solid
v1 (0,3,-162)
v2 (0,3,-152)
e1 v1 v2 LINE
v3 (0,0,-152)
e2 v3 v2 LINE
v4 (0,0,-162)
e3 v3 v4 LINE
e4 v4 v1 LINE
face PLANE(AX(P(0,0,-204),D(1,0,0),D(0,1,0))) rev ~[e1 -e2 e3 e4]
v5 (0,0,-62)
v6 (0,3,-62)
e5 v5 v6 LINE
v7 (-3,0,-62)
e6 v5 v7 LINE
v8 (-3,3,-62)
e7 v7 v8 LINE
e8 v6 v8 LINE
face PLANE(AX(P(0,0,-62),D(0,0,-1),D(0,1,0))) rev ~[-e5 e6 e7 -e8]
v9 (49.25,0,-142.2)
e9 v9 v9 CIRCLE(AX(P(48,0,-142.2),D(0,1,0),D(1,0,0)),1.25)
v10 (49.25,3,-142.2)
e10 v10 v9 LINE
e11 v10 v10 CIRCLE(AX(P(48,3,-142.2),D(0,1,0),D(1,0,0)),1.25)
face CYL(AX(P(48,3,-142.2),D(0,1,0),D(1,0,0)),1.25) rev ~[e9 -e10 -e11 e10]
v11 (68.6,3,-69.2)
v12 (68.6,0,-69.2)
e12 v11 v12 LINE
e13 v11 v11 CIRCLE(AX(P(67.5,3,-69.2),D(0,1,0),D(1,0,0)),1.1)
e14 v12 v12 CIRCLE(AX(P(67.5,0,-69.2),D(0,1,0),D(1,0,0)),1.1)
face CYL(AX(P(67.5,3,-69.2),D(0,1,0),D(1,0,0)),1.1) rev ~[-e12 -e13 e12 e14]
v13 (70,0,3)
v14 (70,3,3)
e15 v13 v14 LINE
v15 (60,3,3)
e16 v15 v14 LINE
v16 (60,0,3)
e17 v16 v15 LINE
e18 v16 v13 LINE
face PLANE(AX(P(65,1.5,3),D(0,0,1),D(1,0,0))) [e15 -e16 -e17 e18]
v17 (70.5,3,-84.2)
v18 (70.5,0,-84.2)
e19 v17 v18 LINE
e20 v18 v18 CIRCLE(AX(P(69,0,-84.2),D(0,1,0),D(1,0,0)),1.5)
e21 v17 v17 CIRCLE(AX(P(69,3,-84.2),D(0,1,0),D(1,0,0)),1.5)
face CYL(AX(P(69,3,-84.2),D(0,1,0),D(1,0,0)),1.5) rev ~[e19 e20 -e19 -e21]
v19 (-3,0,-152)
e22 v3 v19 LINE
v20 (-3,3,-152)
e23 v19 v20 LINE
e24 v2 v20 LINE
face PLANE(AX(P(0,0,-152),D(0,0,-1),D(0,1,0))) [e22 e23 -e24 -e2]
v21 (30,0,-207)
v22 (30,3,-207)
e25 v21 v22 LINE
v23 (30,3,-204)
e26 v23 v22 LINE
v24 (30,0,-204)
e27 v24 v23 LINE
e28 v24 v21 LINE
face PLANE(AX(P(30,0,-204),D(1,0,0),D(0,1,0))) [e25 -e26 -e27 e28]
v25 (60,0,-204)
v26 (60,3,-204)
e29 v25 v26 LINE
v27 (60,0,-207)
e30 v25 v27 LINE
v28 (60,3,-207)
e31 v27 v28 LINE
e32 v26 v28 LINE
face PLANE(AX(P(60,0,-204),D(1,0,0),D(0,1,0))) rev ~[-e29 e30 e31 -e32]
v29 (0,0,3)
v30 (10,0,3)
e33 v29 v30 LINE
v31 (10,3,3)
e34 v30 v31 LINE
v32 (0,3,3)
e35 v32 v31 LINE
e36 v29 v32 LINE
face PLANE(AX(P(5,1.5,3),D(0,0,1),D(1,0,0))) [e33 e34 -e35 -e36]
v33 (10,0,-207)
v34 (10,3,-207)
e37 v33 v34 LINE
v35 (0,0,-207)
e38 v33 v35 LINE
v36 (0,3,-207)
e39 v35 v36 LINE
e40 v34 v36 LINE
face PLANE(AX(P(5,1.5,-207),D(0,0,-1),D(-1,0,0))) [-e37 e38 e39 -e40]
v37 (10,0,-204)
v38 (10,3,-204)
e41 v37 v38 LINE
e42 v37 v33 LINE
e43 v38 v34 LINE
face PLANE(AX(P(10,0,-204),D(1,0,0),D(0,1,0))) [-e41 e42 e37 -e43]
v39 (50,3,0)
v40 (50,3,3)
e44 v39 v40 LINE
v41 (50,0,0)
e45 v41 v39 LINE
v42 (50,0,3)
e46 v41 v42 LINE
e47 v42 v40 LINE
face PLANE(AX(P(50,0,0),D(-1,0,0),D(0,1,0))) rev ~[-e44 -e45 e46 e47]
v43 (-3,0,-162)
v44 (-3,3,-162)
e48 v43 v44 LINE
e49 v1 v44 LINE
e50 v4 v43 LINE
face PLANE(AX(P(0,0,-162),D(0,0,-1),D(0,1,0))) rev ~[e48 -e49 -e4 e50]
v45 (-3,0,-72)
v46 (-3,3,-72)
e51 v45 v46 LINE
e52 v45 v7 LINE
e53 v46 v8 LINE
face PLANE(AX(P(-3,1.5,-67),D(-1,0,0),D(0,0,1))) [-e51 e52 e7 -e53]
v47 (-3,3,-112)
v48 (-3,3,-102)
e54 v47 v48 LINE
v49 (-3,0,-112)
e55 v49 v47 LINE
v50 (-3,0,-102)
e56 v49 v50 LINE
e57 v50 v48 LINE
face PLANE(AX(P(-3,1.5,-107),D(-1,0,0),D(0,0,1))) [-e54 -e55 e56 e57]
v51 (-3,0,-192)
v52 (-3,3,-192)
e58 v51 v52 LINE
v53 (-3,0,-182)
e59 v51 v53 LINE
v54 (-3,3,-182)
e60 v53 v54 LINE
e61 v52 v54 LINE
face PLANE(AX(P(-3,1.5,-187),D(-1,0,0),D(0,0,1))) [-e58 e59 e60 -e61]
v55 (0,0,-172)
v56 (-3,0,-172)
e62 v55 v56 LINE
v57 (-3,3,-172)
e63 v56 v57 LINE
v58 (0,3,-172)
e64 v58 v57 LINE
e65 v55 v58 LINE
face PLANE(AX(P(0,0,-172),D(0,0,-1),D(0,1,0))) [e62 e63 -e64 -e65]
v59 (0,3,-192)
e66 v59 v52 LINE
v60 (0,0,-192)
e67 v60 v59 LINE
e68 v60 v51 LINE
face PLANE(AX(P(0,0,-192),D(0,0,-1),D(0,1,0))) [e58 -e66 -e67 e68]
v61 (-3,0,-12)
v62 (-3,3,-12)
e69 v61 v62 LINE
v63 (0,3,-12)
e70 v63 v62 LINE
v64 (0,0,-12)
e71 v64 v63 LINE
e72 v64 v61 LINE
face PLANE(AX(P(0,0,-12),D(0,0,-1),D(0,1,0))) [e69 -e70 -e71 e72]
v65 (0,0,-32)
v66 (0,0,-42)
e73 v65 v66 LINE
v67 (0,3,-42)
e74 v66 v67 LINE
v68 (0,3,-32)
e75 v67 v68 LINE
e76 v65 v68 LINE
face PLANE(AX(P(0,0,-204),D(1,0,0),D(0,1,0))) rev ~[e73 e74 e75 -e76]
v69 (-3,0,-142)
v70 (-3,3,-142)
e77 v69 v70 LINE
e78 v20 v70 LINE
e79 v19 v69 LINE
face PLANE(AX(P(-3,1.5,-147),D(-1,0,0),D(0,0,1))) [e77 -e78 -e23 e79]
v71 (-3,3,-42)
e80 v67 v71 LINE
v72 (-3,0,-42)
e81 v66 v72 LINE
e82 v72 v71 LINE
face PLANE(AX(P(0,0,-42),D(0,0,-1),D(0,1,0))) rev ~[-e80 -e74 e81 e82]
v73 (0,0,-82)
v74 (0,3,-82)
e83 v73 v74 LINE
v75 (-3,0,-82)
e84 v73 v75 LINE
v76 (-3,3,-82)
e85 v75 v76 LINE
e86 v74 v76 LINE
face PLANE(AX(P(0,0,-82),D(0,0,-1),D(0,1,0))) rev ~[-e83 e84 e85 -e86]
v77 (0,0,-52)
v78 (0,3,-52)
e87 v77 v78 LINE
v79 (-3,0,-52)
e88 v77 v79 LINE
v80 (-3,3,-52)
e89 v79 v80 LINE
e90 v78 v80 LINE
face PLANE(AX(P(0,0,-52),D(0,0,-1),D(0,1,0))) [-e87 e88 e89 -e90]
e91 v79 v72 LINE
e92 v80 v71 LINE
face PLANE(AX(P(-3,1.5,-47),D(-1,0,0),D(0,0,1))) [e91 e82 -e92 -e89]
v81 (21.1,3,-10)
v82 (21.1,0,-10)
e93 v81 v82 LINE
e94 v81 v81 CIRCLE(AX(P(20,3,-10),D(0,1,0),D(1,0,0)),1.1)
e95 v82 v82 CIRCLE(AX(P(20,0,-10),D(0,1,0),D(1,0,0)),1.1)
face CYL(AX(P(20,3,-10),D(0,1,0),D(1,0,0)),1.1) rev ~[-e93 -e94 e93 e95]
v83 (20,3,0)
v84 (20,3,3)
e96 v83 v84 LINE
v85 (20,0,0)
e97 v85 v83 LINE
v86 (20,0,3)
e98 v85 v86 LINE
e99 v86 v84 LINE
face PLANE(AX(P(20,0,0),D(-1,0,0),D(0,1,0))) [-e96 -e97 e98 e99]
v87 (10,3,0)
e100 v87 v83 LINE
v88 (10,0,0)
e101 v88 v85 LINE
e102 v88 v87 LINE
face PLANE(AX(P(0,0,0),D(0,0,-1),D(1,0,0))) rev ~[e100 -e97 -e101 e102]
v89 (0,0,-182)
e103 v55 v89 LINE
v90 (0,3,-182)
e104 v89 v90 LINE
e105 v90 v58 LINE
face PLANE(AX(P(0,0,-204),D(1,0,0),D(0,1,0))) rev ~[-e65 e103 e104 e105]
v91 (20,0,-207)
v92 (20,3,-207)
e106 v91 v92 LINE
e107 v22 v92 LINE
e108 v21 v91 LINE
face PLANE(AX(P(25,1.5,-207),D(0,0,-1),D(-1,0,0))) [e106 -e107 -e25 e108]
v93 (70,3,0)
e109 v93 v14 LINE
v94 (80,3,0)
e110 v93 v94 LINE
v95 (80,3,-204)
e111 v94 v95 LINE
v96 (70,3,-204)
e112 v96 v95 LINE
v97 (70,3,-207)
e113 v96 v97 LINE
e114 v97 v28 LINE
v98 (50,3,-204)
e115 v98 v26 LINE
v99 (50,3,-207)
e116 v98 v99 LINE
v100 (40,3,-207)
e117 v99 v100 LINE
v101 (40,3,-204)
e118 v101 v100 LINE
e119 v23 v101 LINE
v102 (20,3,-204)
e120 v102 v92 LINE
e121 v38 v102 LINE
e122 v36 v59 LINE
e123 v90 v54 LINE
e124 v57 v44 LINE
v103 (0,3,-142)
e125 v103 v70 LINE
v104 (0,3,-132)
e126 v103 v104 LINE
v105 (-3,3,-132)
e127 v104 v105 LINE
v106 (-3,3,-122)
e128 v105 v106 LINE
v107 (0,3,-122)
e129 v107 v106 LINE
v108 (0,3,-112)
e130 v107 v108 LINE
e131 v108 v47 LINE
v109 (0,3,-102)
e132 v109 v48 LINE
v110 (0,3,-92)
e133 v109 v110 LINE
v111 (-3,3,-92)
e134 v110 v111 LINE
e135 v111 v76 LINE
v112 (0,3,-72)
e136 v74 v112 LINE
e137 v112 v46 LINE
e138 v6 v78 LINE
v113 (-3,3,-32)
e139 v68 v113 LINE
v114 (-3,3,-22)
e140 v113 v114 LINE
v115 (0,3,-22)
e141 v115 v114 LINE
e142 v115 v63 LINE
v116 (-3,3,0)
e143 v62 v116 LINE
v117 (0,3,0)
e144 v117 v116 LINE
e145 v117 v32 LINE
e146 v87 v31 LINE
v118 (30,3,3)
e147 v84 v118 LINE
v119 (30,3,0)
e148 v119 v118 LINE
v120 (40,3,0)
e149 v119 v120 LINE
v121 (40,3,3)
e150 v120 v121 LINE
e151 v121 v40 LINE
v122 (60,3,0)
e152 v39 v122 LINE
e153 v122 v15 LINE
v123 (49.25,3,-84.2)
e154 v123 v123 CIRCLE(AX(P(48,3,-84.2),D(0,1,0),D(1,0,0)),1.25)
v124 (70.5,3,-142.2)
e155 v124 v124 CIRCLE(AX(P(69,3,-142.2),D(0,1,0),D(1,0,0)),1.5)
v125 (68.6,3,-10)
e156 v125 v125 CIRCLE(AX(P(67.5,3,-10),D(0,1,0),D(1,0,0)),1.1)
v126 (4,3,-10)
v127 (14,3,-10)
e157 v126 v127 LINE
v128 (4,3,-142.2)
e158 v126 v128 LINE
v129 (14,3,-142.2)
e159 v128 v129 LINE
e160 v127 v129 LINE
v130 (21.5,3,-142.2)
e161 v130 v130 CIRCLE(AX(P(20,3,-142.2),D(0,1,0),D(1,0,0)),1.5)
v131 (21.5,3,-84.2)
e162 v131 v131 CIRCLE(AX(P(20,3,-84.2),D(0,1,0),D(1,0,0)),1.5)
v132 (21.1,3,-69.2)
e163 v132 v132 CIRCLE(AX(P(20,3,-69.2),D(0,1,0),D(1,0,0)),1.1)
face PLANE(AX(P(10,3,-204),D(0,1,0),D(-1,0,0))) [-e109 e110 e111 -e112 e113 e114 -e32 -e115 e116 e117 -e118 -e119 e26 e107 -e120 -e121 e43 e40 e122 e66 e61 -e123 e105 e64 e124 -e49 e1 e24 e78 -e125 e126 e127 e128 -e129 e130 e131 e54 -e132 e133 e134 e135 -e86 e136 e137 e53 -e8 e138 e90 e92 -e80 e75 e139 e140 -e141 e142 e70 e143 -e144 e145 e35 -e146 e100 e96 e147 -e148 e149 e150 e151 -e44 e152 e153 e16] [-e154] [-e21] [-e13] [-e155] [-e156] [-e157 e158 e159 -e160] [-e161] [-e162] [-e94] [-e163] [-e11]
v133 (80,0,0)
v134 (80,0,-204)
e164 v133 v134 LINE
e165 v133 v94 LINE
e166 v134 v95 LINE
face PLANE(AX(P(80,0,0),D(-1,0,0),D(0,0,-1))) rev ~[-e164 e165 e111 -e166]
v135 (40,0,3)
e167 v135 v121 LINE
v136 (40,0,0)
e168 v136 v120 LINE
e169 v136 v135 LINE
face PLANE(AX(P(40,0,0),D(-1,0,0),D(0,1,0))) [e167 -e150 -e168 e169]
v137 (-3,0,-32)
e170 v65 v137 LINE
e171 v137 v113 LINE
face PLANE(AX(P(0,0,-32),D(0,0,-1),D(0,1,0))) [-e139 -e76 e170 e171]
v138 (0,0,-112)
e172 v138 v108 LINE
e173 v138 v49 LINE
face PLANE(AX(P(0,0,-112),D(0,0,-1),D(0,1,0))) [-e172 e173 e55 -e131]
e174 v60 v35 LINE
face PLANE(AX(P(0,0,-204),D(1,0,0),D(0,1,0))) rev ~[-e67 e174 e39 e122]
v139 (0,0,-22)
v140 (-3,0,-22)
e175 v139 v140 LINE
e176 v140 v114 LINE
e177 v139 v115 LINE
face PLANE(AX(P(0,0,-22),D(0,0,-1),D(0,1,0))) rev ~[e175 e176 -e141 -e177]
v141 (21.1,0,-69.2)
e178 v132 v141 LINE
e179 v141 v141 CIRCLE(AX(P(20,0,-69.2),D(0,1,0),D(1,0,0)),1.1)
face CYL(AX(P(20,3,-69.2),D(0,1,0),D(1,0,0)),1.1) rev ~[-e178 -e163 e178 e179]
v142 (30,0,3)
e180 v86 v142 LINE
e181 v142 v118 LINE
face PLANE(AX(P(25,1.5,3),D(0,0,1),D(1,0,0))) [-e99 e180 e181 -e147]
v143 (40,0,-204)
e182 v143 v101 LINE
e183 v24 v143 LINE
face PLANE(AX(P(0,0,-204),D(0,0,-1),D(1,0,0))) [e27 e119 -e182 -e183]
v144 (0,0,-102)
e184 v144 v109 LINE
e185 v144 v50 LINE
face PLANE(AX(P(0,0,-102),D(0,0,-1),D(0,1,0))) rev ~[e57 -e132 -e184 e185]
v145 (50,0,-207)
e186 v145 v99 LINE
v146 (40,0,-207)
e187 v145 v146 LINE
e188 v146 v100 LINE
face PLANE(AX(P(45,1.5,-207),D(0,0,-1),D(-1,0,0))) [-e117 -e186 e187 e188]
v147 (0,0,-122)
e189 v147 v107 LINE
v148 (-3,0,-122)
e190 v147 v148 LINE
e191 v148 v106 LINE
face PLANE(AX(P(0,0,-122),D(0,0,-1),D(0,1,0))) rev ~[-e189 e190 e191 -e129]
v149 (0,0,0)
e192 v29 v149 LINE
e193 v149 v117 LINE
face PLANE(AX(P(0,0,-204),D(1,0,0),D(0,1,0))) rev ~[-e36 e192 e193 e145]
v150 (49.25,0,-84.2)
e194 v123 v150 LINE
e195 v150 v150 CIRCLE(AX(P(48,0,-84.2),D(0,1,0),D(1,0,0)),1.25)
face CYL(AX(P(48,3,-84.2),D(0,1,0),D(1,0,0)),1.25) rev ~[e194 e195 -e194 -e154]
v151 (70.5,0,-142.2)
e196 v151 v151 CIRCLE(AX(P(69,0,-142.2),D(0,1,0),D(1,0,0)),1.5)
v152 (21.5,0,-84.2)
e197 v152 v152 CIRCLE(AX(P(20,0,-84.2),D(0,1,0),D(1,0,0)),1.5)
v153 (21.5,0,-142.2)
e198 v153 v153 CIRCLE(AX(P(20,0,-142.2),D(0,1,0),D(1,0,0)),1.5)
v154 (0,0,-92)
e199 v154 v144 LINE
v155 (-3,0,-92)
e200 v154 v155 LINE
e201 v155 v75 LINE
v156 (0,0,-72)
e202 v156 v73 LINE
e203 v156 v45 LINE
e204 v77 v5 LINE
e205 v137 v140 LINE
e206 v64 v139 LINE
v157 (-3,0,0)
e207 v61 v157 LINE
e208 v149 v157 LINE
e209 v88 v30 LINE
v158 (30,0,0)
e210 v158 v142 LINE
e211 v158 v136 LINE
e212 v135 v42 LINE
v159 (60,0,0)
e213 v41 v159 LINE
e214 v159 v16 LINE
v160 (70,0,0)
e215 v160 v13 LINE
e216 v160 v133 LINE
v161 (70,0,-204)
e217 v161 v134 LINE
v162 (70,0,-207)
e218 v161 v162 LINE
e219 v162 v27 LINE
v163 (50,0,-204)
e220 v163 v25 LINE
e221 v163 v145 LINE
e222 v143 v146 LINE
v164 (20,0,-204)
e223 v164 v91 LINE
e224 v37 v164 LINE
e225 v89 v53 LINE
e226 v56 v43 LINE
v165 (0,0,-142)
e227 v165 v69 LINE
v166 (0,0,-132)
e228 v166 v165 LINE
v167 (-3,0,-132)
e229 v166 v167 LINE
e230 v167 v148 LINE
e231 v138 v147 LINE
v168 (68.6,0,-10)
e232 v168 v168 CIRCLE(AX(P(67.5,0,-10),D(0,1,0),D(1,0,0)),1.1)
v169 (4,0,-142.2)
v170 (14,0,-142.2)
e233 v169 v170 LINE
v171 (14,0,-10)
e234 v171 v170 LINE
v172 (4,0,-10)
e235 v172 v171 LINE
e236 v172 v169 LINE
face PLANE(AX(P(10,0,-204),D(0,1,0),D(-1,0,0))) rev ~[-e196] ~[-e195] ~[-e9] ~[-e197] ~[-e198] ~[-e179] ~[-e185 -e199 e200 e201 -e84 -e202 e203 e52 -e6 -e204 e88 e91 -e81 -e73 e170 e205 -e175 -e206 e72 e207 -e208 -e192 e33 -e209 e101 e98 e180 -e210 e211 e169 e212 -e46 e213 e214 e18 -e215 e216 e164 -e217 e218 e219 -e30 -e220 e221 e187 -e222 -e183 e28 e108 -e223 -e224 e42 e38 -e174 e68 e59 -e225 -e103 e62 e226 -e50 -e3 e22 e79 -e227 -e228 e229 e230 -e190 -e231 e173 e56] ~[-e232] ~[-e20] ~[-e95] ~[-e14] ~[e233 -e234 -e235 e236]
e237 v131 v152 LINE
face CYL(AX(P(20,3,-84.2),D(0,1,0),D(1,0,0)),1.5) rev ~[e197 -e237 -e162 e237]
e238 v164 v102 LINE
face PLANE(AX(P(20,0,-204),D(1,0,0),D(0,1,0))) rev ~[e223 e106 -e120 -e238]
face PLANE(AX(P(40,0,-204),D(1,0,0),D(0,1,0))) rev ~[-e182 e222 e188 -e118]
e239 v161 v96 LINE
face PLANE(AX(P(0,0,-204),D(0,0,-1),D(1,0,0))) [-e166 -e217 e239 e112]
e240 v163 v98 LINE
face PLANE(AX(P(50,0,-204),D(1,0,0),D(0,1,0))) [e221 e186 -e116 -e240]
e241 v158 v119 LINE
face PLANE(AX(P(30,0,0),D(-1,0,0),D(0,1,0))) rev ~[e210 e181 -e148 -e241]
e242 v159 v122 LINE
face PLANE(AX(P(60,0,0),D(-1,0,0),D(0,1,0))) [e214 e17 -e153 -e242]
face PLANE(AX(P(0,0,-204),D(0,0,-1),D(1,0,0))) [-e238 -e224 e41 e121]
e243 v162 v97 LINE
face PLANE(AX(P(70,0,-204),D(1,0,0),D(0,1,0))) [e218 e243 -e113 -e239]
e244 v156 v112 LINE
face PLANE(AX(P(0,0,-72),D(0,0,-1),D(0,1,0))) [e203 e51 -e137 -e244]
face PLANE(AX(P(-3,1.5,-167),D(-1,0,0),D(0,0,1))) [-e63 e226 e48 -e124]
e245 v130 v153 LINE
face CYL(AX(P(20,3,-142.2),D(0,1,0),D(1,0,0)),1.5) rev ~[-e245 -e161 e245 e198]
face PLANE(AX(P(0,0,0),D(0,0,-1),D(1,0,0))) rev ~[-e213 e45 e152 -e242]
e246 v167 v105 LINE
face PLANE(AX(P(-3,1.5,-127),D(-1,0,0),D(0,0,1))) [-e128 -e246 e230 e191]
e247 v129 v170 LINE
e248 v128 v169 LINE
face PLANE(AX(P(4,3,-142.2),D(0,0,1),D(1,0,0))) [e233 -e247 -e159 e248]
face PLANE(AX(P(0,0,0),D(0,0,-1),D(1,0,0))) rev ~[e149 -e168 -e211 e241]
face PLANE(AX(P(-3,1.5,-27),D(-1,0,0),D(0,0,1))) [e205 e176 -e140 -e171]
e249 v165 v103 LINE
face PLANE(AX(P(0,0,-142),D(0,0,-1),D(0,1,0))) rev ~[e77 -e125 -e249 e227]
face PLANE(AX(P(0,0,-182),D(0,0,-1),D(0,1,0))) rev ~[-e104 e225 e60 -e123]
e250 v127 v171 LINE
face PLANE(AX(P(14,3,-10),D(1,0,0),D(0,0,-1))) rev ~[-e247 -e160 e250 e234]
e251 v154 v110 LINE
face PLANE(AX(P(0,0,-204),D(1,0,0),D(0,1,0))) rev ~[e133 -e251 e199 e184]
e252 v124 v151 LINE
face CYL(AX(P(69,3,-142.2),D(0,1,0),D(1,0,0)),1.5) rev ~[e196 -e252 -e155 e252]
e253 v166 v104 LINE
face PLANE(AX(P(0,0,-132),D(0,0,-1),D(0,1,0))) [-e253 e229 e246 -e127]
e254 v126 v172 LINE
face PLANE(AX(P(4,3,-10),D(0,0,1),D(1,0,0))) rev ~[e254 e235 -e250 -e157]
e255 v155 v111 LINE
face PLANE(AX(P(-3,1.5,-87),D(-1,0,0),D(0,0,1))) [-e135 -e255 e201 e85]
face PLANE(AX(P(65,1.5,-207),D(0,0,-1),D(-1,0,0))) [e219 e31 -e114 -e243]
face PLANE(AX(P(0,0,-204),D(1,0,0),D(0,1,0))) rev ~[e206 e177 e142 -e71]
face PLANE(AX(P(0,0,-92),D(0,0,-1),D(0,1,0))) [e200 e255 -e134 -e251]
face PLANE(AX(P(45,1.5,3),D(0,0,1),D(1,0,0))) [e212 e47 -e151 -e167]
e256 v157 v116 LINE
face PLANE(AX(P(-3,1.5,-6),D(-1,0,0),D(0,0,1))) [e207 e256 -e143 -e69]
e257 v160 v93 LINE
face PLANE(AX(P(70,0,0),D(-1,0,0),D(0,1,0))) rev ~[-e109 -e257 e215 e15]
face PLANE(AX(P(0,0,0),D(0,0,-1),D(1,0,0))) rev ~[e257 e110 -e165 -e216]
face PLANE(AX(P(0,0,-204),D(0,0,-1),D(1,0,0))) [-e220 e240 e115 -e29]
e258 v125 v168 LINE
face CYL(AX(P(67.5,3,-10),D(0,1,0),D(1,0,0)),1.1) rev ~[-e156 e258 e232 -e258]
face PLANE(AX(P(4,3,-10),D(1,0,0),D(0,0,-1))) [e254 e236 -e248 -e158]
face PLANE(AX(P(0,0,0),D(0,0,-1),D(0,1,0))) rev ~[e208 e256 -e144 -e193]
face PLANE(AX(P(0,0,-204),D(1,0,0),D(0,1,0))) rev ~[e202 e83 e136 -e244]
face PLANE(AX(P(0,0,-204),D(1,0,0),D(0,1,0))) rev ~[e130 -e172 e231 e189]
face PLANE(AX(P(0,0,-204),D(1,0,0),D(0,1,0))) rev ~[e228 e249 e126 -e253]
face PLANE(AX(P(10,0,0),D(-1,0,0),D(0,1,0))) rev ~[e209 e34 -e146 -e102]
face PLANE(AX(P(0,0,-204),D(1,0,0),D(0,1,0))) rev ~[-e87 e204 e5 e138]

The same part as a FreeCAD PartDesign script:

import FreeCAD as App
import Part
import Sketcher
Q = App.Units.Quantity

doc = App.newDocument("Part")
params = doc.addObject("Spreadsheet::Sheet", "Params")
for row, (alias, value) in enumerate([
    ("sketch1_width", "80 mm"),
    ("sketch1_height", "204 mm"),
    ("pad1_length", "3 mm"),
    ("sketch2_width", "10 mm"),
    ("sketch2_height", "3 mm"),
    ("pad2_length", "3 mm"),
    ("linearpattern_pitch", "20 mm"),
    ("sketch3_width", "10 mm"),
    ("sketch3_height", "3 mm"),
    ("pad3_length", "3 mm"),
    ("linearpattern2_pitch", "20 mm"),
    ("sketch4_diameter", "3 mm"),
    ("sketch4_diameter2", "2.2 mm"),
    ("sketch4_diameter3", "2.5 mm"),
    ("sketch4_width", "10 mm"),
    ("sketch4_height", "132.2 mm"),
    ("sketch5_width", "3 mm"),
    ("sketch5_height", "12 mm"),
    ("sketch5_height2", "10 mm"),
    ("pad4_length", "3 mm"),
], start=1):
    params.set(f"A{row}", alias)
    params.set(f"B{row}", "=" + value)
    params.setAlias(f"B{row}", alias)

body = doc.addObject("PartDesign::Body", "Body")

# Sketch on XZ plane
sketch1 = doc.addObject("Sketcher::SketchObject", "Sketch")
body.addObject(sketch1)
sketch1.AttachmentSupport = (doc.XZ_Plane, [""])
sketch1.MapMode = "FlatFace"
sketch1.addGeometry(Part.LineSegment(App.Vector(0, -204, 0), App.Vector(0, 0, 0)), False)
sketch1.addGeometry(Part.LineSegment(App.Vector(0, 0, 0), App.Vector(80, 0, 0)), False)
sketch1.addGeometry(Part.LineSegment(App.Vector(80, 0, 0), App.Vector(80, -204, 0)), False)
sketch1.addGeometry(Part.LineSegment(App.Vector(80, -204, 0), App.Vector(0, -204, 0)), False)
sketch1.addConstraint(Sketcher.Constraint("Coincident", 0, 2, 1, 1))
sketch1.addConstraint(Sketcher.Constraint("Coincident", 1, 2, 2, 1))
sketch1.addConstraint(Sketcher.Constraint("Coincident", 2, 2, 3, 1))
sketch1.addConstraint(Sketcher.Constraint("Coincident", 3, 2, 0, 1))
sketch1.addConstraint(Sketcher.Constraint("Vertical", 0))
sketch1.addConstraint(Sketcher.Constraint("Horizontal", 1))
sketch1.addConstraint(Sketcher.Constraint("Vertical", 2))
sketch1.addConstraint(Sketcher.Constraint("Horizontal", 3))
sketch1.addConstraint(Sketcher.Constraint("Coincident", 0, 2, -1, 1))
sketch1.addConstraint(Sketcher.Constraint("DistanceX", 1, 1, 1, 2, Q("80 mm")))
sketch1.addConstraint(Sketcher.Constraint("DistanceY", 0, 1, 0, 2, Q("204 mm")))
sketch1.setExpression("Constraints[9]", "Params.sketch1_width")
sketch1.setExpression("Constraints[10]", "Params.sketch1_height")
pad1 = doc.addObject("PartDesign::Pad", "Pad")
body.addObject(pad1)
pad1.Profile = sketch1
pad1.setExpression("Length", "Params.pad1_length")
pad1.Reversed = True

# Sketch on XY plane
sketch2 = doc.addObject("Sketcher::SketchObject", "Sketch001")
body.addObject(sketch2)
sketch2.AttachmentSupport = (doc.XY_Plane, [""])
sketch2.MapMode = "FlatFace"
sketch2.addGeometry(Part.LineSegment(App.Vector(0, 3, 0), App.Vector(0, 0, 0)), False)
sketch2.addGeometry(Part.LineSegment(App.Vector(0, 0, 0), App.Vector(10, 0, 0)), False)
sketch2.addGeometry(Part.LineSegment(App.Vector(10, 0, 0), App.Vector(10, 3, 0)), False)
sketch2.addGeometry(Part.LineSegment(App.Vector(10, 3, 0), App.Vector(0, 3, 0)), False)
sketch2.addConstraint(Sketcher.Constraint("Coincident", 0, 2, 1, 1))
sketch2.addConstraint(Sketcher.Constraint("Coincident", 1, 2, 2, 1))
sketch2.addConstraint(Sketcher.Constraint("Coincident", 2, 2, 3, 1))
sketch2.addConstraint(Sketcher.Constraint("Coincident", 3, 2, 0, 1))
sketch2.addConstraint(Sketcher.Constraint("Vertical", 0))
sketch2.addConstraint(Sketcher.Constraint("Horizontal", 1))
sketch2.addConstraint(Sketcher.Constraint("Vertical", 2))
sketch2.addConstraint(Sketcher.Constraint("Horizontal", 3))
sketch2.addConstraint(Sketcher.Constraint("Coincident", 0, 2, -1, 1))
sketch2.addConstraint(Sketcher.Constraint("DistanceX", 1, 1, 1, 2, Q("10 mm")))
sketch2.addConstraint(Sketcher.Constraint("DistanceY", 0, 2, 0, 1, Q("3 mm")))
sketch2.setExpression("Constraints[9]", "Params.sketch2_width")
sketch2.setExpression("Constraints[10]", "Params.sketch2_height")
pad2 = doc.addObject("PartDesign::Pad", "Pad001")
body.addObject(pad2)
pad2.Profile = sketch2
pad2.setExpression("Length", "Params.pad2_length")
doc.recompute()

linearpattern = doc.addObject("PartDesign::LinearPattern", "LinearPattern")
body.addObject(linearpattern)
linearpattern.Originals = [pad2]
linearpattern.Direction = (doc.X_Axis, [""])
linearpattern.Mode = "offset"
linearpattern.setExpression("Offset", "Params.linearpattern_pitch")
linearpattern.Occurrences = 4
body.Tip = linearpattern

# Sketch on XY plane
sketch3 = doc.addObject("Sketcher::SketchObject", "Sketch002")
body.addObject(sketch3)
sketch3.AttachmentSupport = (doc.XY_Plane, [""])
sketch3.MapMode = "FlatFace"
sketch3.AttachmentOffset = App.Placement(App.Vector(0, 0, -204), App.Rotation())
sketch3.addGeometry(Part.LineSegment(App.Vector(10, 3, 0), App.Vector(10, 0, 0)), False)
sketch3.addGeometry(Part.LineSegment(App.Vector(10, 0, 0), App.Vector(0, 0, 0)), False)
sketch3.addGeometry(Part.LineSegment(App.Vector(0, 0, 0), App.Vector(0, 3, 0)), False)
sketch3.addGeometry(Part.LineSegment(App.Vector(0, 3, 0), App.Vector(10, 3, 0)), False)
sketch3.addConstraint(Sketcher.Constraint("Coincident", 0, 2, 1, 1))
sketch3.addConstraint(Sketcher.Constraint("Coincident", 1, 2, 2, 1))
sketch3.addConstraint(Sketcher.Constraint("Coincident", 2, 2, 3, 1))
sketch3.addConstraint(Sketcher.Constraint("Coincident", 3, 2, 0, 1))
sketch3.addConstraint(Sketcher.Constraint("Vertical", 0))
sketch3.addConstraint(Sketcher.Constraint("Horizontal", 1))
sketch3.addConstraint(Sketcher.Constraint("Vertical", 2))
sketch3.addConstraint(Sketcher.Constraint("Horizontal", 3))
sketch3.addConstraint(Sketcher.Constraint("Coincident", 1, 2, -1, 1))
sketch3.addConstraint(Sketcher.Constraint("DistanceX", 1, 2, 1, 1, Q("10 mm")))
sketch3.addConstraint(Sketcher.Constraint("DistanceY", 0, 2, 0, 1, Q("3 mm")))
sketch3.setExpression("Constraints[9]", "Params.sketch3_width")
sketch3.setExpression("Constraints[10]", "Params.sketch3_height")
pad3 = doc.addObject("PartDesign::Pad", "Pad002")
body.addObject(pad3)
pad3.Profile = sketch3
pad3.setExpression("Length", "Params.pad3_length")
pad3.Reversed = True
doc.recompute()

linearpattern2 = doc.addObject("PartDesign::LinearPattern", "LinearPattern001")
body.addObject(linearpattern2)
linearpattern2.Originals = [pad3]
linearpattern2.Direction = (doc.X_Axis, [""])
linearpattern2.Mode = "offset"
linearpattern2.setExpression("Offset", "Params.linearpattern2_pitch")
linearpattern2.Occurrences = 4
body.Tip = linearpattern2

# Sketch on XZ plane
sketch4 = doc.addObject("Sketcher::SketchObject", "Sketch003")
body.addObject(sketch4)
sketch4.AttachmentSupport = (doc.XZ_Plane, [""])
sketch4.MapMode = "FlatFace"
sketch4.AttachmentOffset = App.Placement(App.Vector(0, 0, -3), App.Rotation())
sketch4.addGeometry(Part.Circle(App.Vector(20, -10, 0), App.Vector(0, 0, 1), 1.1), False)
sketch4.addGeometry(Part.Circle(App.Vector(67.5, -10, 0), App.Vector(0, 0, 1), 1.1), False)
sketch4.addGeometry(Part.Circle(App.Vector(20, -69.2, 0), App.Vector(0, 0, 1), 1.1), False)
sketch4.addGeometry(Part.Circle(App.Vector(67.5, -69.2, 0), App.Vector(0, 0, 1), 1.1), False)
sketch4.addGeometry(Part.Circle(App.Vector(20, -84.2, 0), App.Vector(0, 0, 1), 1.5), False)
sketch4.addGeometry(Part.Circle(App.Vector(69, -84.2, 0), App.Vector(0, 0, 1), 1.5), False)
sketch4.addGeometry(Part.Circle(App.Vector(69, -142.2, 0), App.Vector(0, 0, 1), 1.5), False)
sketch4.addGeometry(Part.Circle(App.Vector(20, -142.2, 0), App.Vector(0, 0, 1), 1.5), False)
sketch4.addGeometry(Part.Circle(App.Vector(48, -84.2, 0), App.Vector(0, 0, 1), 1.2), False)
sketch4.addGeometry(Part.Circle(App.Vector(48, -142.2, 0), App.Vector(0, 0, 1), 1.2), False)
sketch4.addGeometry(Part.LineSegment(App.Vector(4, -142.2, 0), App.Vector(4, -10, 0)), False)
sketch4.addGeometry(Part.LineSegment(App.Vector(4, -10, 0), App.Vector(14, -10, 0)), False)
sketch4.addGeometry(Part.LineSegment(App.Vector(14, -10, 0), App.Vector(14, -142.2, 0)), False)
sketch4.addGeometry(Part.LineSegment(App.Vector(14, -142.2, 0), App.Vector(4, -142.2, 0)), False)
sketch4.addConstraint(Sketcher.Constraint("Coincident", 10, 2, 11, 1))
sketch4.addConstraint(Sketcher.Constraint("Coincident", 11, 2, 12, 1))
sketch4.addConstraint(Sketcher.Constraint("Coincident", 12, 2, 13, 1))
sketch4.addConstraint(Sketcher.Constraint("Coincident", 13, 2, 10, 1))
sketch4.addConstraint(Sketcher.Constraint("Vertical", 10))
sketch4.addConstraint(Sketcher.Constraint("Horizontal", 11))
sketch4.addConstraint(Sketcher.Constraint("Vertical", 12))
sketch4.addConstraint(Sketcher.Constraint("Horizontal", 13))
sketch4.addConstraint(Sketcher.Constraint("Equal", 0, 1))
sketch4.addConstraint(Sketcher.Constraint("Equal", 1, 2))
sketch4.addConstraint(Sketcher.Constraint("Equal", 2, 3))
sketch4.addConstraint(Sketcher.Constraint("Equal", 4, 5))
sketch4.addConstraint(Sketcher.Constraint("Equal", 5, 6))
sketch4.addConstraint(Sketcher.Constraint("Equal", 6, 7))
sketch4.addConstraint(Sketcher.Constraint("Equal", 8, 9))
sketch4.addConstraint(Sketcher.Constraint("Horizontal", 0, 3, 1, 3))
sketch4.addConstraint(Sketcher.Constraint("Horizontal", 2, 3, 3, 3))
sketch4.addConstraint(Sketcher.Constraint("Horizontal", 4, 3, 5, 3))
sketch4.addConstraint(Sketcher.Constraint("Horizontal", 6, 3, 7, 3))
sketch4.addConstraint(Sketcher.Constraint("Horizontal", 5, 3, 8, 3))
sketch4.addConstraint(Sketcher.Constraint("Horizontal", 7, 3, 9, 3))
sketch4.addConstraint(Sketcher.Constraint("Horizontal", 1, 3, 10, 2))
sketch4.addConstraint(Sketcher.Constraint("Horizontal", 9, 3, 12, 2))
sketch4.addConstraint(Sketcher.Constraint("Vertical", 0, 3, 2, 3))
sketch4.addConstraint(Sketcher.Constraint("Vertical", 1, 3, 3, 3))
sketch4.addConstraint(Sketcher.Constraint("Vertical", 2, 3, 4, 3))
sketch4.addConstraint(Sketcher.Constraint("Vertical", 5, 3, 6, 3))
sketch4.addConstraint(Sketcher.Constraint("Vertical", 4, 3, 7, 3))
sketch4.addConstraint(Sketcher.Constraint("Vertical", 8, 3, 9, 3))
sketch4.addConstraint(Sketcher.Constraint("Diameter", 4, Q("3 mm")))
sketch4.addConstraint(Sketcher.Constraint("Diameter", 0, Q("2.2 mm")))
sketch4.addConstraint(Sketcher.Constraint("Diameter", 8, Q("2.5 mm")))
sketch4.addConstraint(Sketcher.Constraint("DistanceX", 11, 1, 11, 2, Q("10 mm")))
sketch4.addConstraint(Sketcher.Constraint("DistanceY", 10, 1, 10, 2, Q("132.2 mm")))
sketch4.addConstraint(Sketcher.Constraint("DistanceX", -1, 1, 0, 3, Q("20 mm")))
sketch4.addConstraint(Sketcher.Constraint("DistanceY", 0, 3, -1, 1, Q("10 mm")))
sketch4.addConstraint(Sketcher.Constraint("DistanceX", -1, 1, 5, 3, Q("69 mm")))
sketch4.addConstraint(Sketcher.Constraint("DistanceX", -1, 1, 8, 3, Q("48 mm")))
sketch4.addConstraint(Sketcher.Constraint("DistanceX", -1, 1, 10, 2, Q("4 mm")))
sketch4.addConstraint(Sketcher.Constraint("DistanceY", 4, 3, 2, 3, Q("15 mm")))
sketch4.addConstraint(Sketcher.Constraint("DistanceY", 6, 3, 5, 3, Q("58 mm")))
sketch4.addConstraint(Sketcher.Constraint("DistanceX", -1, 1, 1, 3, Q("67.5 mm")))
sketch4.setExpression("Constraints[29]", "Params.sketch4_diameter")
sketch4.setExpression("Constraints[30]", "Params.sketch4_diameter2")
sketch4.setExpression("Constraints[31]", "Params.sketch4_diameter3")
sketch4.setExpression("Constraints[32]", "Params.sketch4_width")
sketch4.setExpression("Constraints[33]", "Params.sketch4_height")
pocket1 = doc.addObject("PartDesign::Pocket", "Pocket")
body.addObject(pocket1)
pocket1.Profile = sketch4
pocket1.Type = "ThroughAll"
pocket1.Reversed = True

# Sketch on YZ plane
sketch5 = doc.addObject("Sketcher::SketchObject", "Sketch004")
body.addObject(sketch5)
sketch5.AttachmentSupport = (doc.YZ_Plane, [""])
sketch5.MapMode = "FlatFace"
sketch5.addGeometry(Part.LineSegment(App.Vector(3, -12, 0), App.Vector(0, -12, 0)), False)
sketch5.addGeometry(Part.LineSegment(App.Vector(0, -12, 0), App.Vector(0, 0, 0)), False)
sketch5.addGeometry(Part.LineSegment(App.Vector(0, 0, 0), App.Vector(3, 0, 0)), False)
sketch5.addGeometry(Part.LineSegment(App.Vector(3, 0, 0), App.Vector(3, -12, 0)), False)
sketch5.addGeometry(Part.LineSegment(App.Vector(3, -32, 0), App.Vector(0, -32, 0)), False)
sketch5.addGeometry(Part.LineSegment(App.Vector(0, -32, 0), App.Vector(0, -22, 0)), False)
sketch5.addGeometry(Part.LineSegment(App.Vector(0, -22, 0), App.Vector(3, -22, 0)), False)
sketch5.addGeometry(Part.LineSegment(App.Vector(3, -22, 0), App.Vector(3, -32, 0)), False)
sketch5.addGeometry(Part.LineSegment(App.Vector(3, -52, 0), App.Vector(0, -52, 0)), False)
sketch5.addGeometry(Part.LineSegment(App.Vector(0, -52, 0), App.Vector(0, -42, 0)), False)
sketch5.addGeometry(Part.LineSegment(App.Vector(0, -42, 0), App.Vector(3, -42, 0)), False)
sketch5.addGeometry(Part.LineSegment(App.Vector(3, -42, 0), App.Vector(3, -52, 0)), False)
sketch5.addGeometry(Part.LineSegment(App.Vector(3, -72, 0), App.Vector(0, -72, 0)), False)
sketch5.addGeometry(Part.LineSegment(App.Vector(0, -72, 0), App.Vector(0, -62, 0)), False)
sketch5.addGeometry(Part.LineSegment(App.Vector(0, -62, 0), App.Vector(3, -62, 0)), False)
sketch5.addGeometry(Part.LineSegment(App.Vector(3, -62, 0), App.Vector(3, -72, 0)), False)
sketch5.addGeometry(Part.LineSegment(App.Vector(3, -92, 0), App.Vector(0, -92, 0)), False)
sketch5.addGeometry(Part.LineSegment(App.Vector(0, -92, 0), App.Vector(0, -82, 0)), False)
sketch5.addGeometry(Part.LineSegment(App.Vector(0, -82, 0), App.Vector(3, -82, 0)), False)
sketch5.addGeometry(Part.LineSegment(App.Vector(3, -82, 0), App.Vector(3, -92, 0)), False)
sketch5.addGeometry(Part.LineSegment(App.Vector(3, -112, 0), App.Vector(0, -112, 0)), False)
sketch5.addGeometry(Part.LineSegment(App.Vector(0, -112, 0), App.Vector(0, -102, 0)), False)
sketch5.addGeometry(Part.LineSegment(App.Vector(0, -102, 0), App.Vector(3, -102, 0)), False)
sketch5.addGeometry(Part.LineSegment(App.Vector(3, -102, 0), App.Vector(3, -112, 0)), False)
sketch5.addGeometry(Part.LineSegment(App.Vector(3, -132, 0), App.Vector(0, -132, 0)), False)
sketch5.addGeometry(Part.LineSegment(App.Vector(0, -132, 0), App.Vector(0, -122, 0)), False)
sketch5.addGeometry(Part.LineSegment(App.Vector(0, -122, 0), App.Vector(3, -122, 0)), False)
sketch5.addGeometry(Part.LineSegment(App.Vector(3, -122, 0), App.Vector(3, -132, 0)), False)
sketch5.addGeometry(Part.LineSegment(App.Vector(3, -152, 0), App.Vector(0, -152, 0)), False)
sketch5.addGeometry(Part.LineSegment(App.Vector(0, -152, 0), App.Vector(0, -142, 0)), False)
sketch5.addGeometry(Part.LineSegment(App.Vector(0, -142, 0), App.Vector(3, -142, 0)), False)
sketch5.addGeometry(Part.LineSegment(App.Vector(3, -142, 0), App.Vector(3, -152, 0)), False)
sketch5.addGeometry(Part.LineSegment(App.Vector(3, -172, 0), App.Vector(0, -172, 0)), False)
sketch5.addGeometry(Part.LineSegment(App.Vector(0, -172, 0), App.Vector(0, -162, 0)), False)
sketch5.addGeometry(Part.LineSegment(App.Vector(0, -162, 0), App.Vector(3, -162, 0)), False)
sketch5.addGeometry(Part.LineSegment(App.Vector(3, -162, 0), App.Vector(3, -172, 0)), False)
sketch5.addGeometry(Part.LineSegment(App.Vector(3, -192, 0), App.Vector(0, -192, 0)), False)
sketch5.addGeometry(Part.LineSegment(App.Vector(0, -192, 0), App.Vector(0, -182, 0)), False)
sketch5.addGeometry(Part.LineSegment(App.Vector(0, -182, 0), App.Vector(3, -182, 0)), False)
sketch5.addGeometry(Part.LineSegment(App.Vector(3, -182, 0), App.Vector(3, -192, 0)), False)
sketch5.addConstraint(Sketcher.Constraint("Coincident", 0, 2, 1, 1))
sketch5.addConstraint(Sketcher.Constraint("Coincident", 1, 2, 2, 1))
sketch5.addConstraint(Sketcher.Constraint("Coincident", 2, 2, 3, 1))
sketch5.addConstraint(Sketcher.Constraint("Coincident", 3, 2, 0, 1))
sketch5.addConstraint(Sketcher.Constraint("Coincident", 4, 2, 5, 1))
sketch5.addConstraint(Sketcher.Constraint("Coincident", 5, 2, 6, 1))
sketch5.addConstraint(Sketcher.Constraint("Coincident", 6, 2, 7, 1))
sketch5.addConstraint(Sketcher.Constraint("Coincident", 7, 2, 4, 1))
sketch5.addConstraint(Sketcher.Constraint("Coincident", 8, 2, 9, 1))
sketch5.addConstraint(Sketcher.Constraint("Coincident", 9, 2, 10, 1))
sketch5.addConstraint(Sketcher.Constraint("Coincident", 10, 2, 11, 1))
sketch5.addConstraint(Sketcher.Constraint("Coincident", 11, 2, 8, 1))
sketch5.addConstraint(Sketcher.Constraint("Coincident", 12, 2, 13, 1))
sketch5.addConstraint(Sketcher.Constraint("Coincident", 13, 2, 14, 1))
sketch5.addConstraint(Sketcher.Constraint("Coincident", 14, 2, 15, 1))
sketch5.addConstraint(Sketcher.Constraint("Coincident", 15, 2, 12, 1))
sketch5.addConstraint(Sketcher.Constraint("Coincident", 16, 2, 17, 1))
sketch5.addConstraint(Sketcher.Constraint("Coincident", 17, 2, 18, 1))
sketch5.addConstraint(Sketcher.Constraint("Coincident", 18, 2, 19, 1))
sketch5.addConstraint(Sketcher.Constraint("Coincident", 19, 2, 16, 1))
sketch5.addConstraint(Sketcher.Constraint("Coincident", 20, 2, 21, 1))
sketch5.addConstraint(Sketcher.Constraint("Coincident", 21, 2, 22, 1))
sketch5.addConstraint(Sketcher.Constraint("Coincident", 22, 2, 23, 1))
sketch5.addConstraint(Sketcher.Constraint("Coincident", 23, 2, 20, 1))
sketch5.addConstraint(Sketcher.Constraint("Coincident", 24, 2, 25, 1))
sketch5.addConstraint(Sketcher.Constraint("Coincident", 25, 2, 26, 1))
sketch5.addConstraint(Sketcher.Constraint("Coincident", 26, 2, 27, 1))
sketch5.addConstraint(Sketcher.Constraint("Coincident", 27, 2, 24, 1))
sketch5.addConstraint(Sketcher.Constraint("Coincident", 28, 2, 29, 1))
sketch5.addConstraint(Sketcher.Constraint("Coincident", 29, 2, 30, 1))
sketch5.addConstraint(Sketcher.Constraint("Coincident", 30, 2, 31, 1))
sketch5.addConstraint(Sketcher.Constraint("Coincident", 31, 2, 28, 1))
sketch5.addConstraint(Sketcher.Constraint("Coincident", 32, 2, 33, 1))
sketch5.addConstraint(Sketcher.Constraint("Coincident", 33, 2, 34, 1))
sketch5.addConstraint(Sketcher.Constraint("Coincident", 34, 2, 35, 1))
sketch5.addConstraint(Sketcher.Constraint("Coincident", 35, 2, 32, 1))
sketch5.addConstraint(Sketcher.Constraint("Coincident", 36, 2, 37, 1))
sketch5.addConstraint(Sketcher.Constraint("Coincident", 37, 2, 38, 1))
sketch5.addConstraint(Sketcher.Constraint("Coincident", 38, 2, 39, 1))
sketch5.addConstraint(Sketcher.Constraint("Coincident", 39, 2, 36, 1))
sketch5.addConstraint(Sketcher.Constraint("Horizontal", 0))
sketch5.addConstraint(Sketcher.Constraint("Vertical", 1))
sketch5.addConstraint(Sketcher.Constraint("Horizontal", 2))
sketch5.addConstraint(Sketcher.Constraint("Vertical", 3))
sketch5.addConstraint(Sketcher.Constraint("Horizontal", 4))
sketch5.addConstraint(Sketcher.Constraint("Vertical", 5))
sketch5.addConstraint(Sketcher.Constraint("Horizontal", 6))
sketch5.addConstraint(Sketcher.Constraint("Vertical", 7))
sketch5.addConstraint(Sketcher.Constraint("Horizontal", 8))
sketch5.addConstraint(Sketcher.Constraint("Vertical", 9))
sketch5.addConstraint(Sketcher.Constraint("Horizontal", 10))
sketch5.addConstraint(Sketcher.Constraint("Vertical", 11))
sketch5.addConstraint(Sketcher.Constraint("Horizontal", 12))
sketch5.addConstraint(Sketcher.Constraint("Vertical", 13))
sketch5.addConstraint(Sketcher.Constraint("Horizontal", 14))
sketch5.addConstraint(Sketcher.Constraint("Vertical", 15))
sketch5.addConstraint(Sketcher.Constraint("Horizontal", 16))
sketch5.addConstraint(Sketcher.Constraint("Vertical", 17))
sketch5.addConstraint(Sketcher.Constraint("Horizontal", 18))
sketch5.addConstraint(Sketcher.Constraint("Vertical", 19))
sketch5.addConstraint(Sketcher.Constraint("Horizontal", 20))
sketch5.addConstraint(Sketcher.Constraint("Vertical", 21))
sketch5.addConstraint(Sketcher.Constraint("Horizontal", 22))
sketch5.addConstraint(Sketcher.Constraint("Vertical", 23))
sketch5.addConstraint(Sketcher.Constraint("Horizontal", 24))
sketch5.addConstraint(Sketcher.Constraint("Vertical", 25))
sketch5.addConstraint(Sketcher.Constraint("Horizontal", 26))
sketch5.addConstraint(Sketcher.Constraint("Vertical", 27))
sketch5.addConstraint(Sketcher.Constraint("Horizontal", 28))
sketch5.addConstraint(Sketcher.Constraint("Vertical", 29))
sketch5.addConstraint(Sketcher.Constraint("Horizontal", 30))
sketch5.addConstraint(Sketcher.Constraint("Vertical", 31))
sketch5.addConstraint(Sketcher.Constraint("Horizontal", 32))
sketch5.addConstraint(Sketcher.Constraint("Vertical", 33))
sketch5.addConstraint(Sketcher.Constraint("Horizontal", 34))
sketch5.addConstraint(Sketcher.Constraint("Vertical", 35))
sketch5.addConstraint(Sketcher.Constraint("Horizontal", 36))
sketch5.addConstraint(Sketcher.Constraint("Vertical", 37))
sketch5.addConstraint(Sketcher.Constraint("Horizontal", 38))
sketch5.addConstraint(Sketcher.Constraint("Vertical", 39))
sketch5.addConstraint(Sketcher.Constraint("Coincident", 1, 2, -1, 1))
sketch5.addConstraint(Sketcher.Constraint("PointOnObject", 4, 2, -2))
sketch5.addConstraint(Sketcher.Constraint("PointOnObject", 8, 2, -2))
sketch5.addConstraint(Sketcher.Constraint("PointOnObject", 12, 2, -2))
sketch5.addConstraint(Sketcher.Constraint("PointOnObject", 16, 2, -2))
sketch5.addConstraint(Sketcher.Constraint("PointOnObject", 20, 2, -2))
sketch5.addConstraint(Sketcher.Constraint("PointOnObject", 24, 2, -2))
sketch5.addConstraint(Sketcher.Constraint("PointOnObject", 28, 2, -2))
sketch5.addConstraint(Sketcher.Constraint("PointOnObject", 32, 2, -2))
sketch5.addConstraint(Sketcher.Constraint("PointOnObject", 36, 2, -2))
sketch5.addConstraint(Sketcher.Constraint("Vertical", 3, 2, 6, 2))
sketch5.addConstraint(Sketcher.Constraint("Vertical", 7, 2, 10, 2))
sketch5.addConstraint(Sketcher.Constraint("Vertical", 11, 2, 14, 2))
sketch5.addConstraint(Sketcher.Constraint("Vertical", 15, 2, 18, 2))
sketch5.addConstraint(Sketcher.Constraint("Vertical", 19, 2, 22, 2))
sketch5.addConstraint(Sketcher.Constraint("Vertical", 23, 2, 26, 2))
sketch5.addConstraint(Sketcher.Constraint("Vertical", 27, 2, 30, 2))
sketch5.addConstraint(Sketcher.Constraint("Vertical", 31, 2, 34, 2))
sketch5.addConstraint(Sketcher.Constraint("Vertical", 35, 2, 38, 2))
sketch5.addConstraint(Sketcher.Constraint("Equal", 7, 9))
sketch5.addConstraint(Sketcher.Constraint("Equal", 11, 13))
sketch5.addConstraint(Sketcher.Constraint("Equal", 15, 17))
sketch5.addConstraint(Sketcher.Constraint("Equal", 19, 21))
sketch5.addConstraint(Sketcher.Constraint("Equal", 23, 25))
sketch5.addConstraint(Sketcher.Constraint("Equal", 27, 29))
sketch5.addConstraint(Sketcher.Constraint("Equal", 31, 33))
sketch5.addConstraint(Sketcher.Constraint("Equal", 35, 37))
sketch5.addConstraint(Sketcher.Constraint("DistanceX", 0, 2, 0, 1, Q("3 mm")))
sketch5.addConstraint(Sketcher.Constraint("DistanceY", 1, 1, 1, 2, Q("12 mm")))
sketch5.addConstraint(Sketcher.Constraint("DistanceY", 5, 1, 5, 2, Q("10 mm")))
sketch5.addConstraint(Sketcher.Constraint("DistanceY", 4, 2, -1, 1, Q("32 mm")))
sketch5.addConstraint(Sketcher.Constraint("DistanceY", 8, 2, -1, 1, Q("52 mm")))
sketch5.addConstraint(Sketcher.Constraint("DistanceY", 12, 2, -1, 1, Q("72 mm")))
sketch5.addConstraint(Sketcher.Constraint("DistanceY", 16, 2, -1, 1, Q("92 mm")))
sketch5.addConstraint(Sketcher.Constraint("DistanceY", 20, 2, -1, 1, Q("112 mm")))
sketch5.addConstraint(Sketcher.Constraint("DistanceY", 24, 2, -1, 1, Q("132 mm")))
sketch5.addConstraint(Sketcher.Constraint("DistanceY", 28, 2, -1, 1, Q("152 mm")))
sketch5.addConstraint(Sketcher.Constraint("DistanceY", 32, 2, -1, 1, Q("172 mm")))
sketch5.addConstraint(Sketcher.Constraint("DistanceY", 36, 2, -1, 1, Q("192 mm")))
sketch5.setExpression("Constraints[107]", "Params.sketch5_width")
sketch5.setExpression("Constraints[108]", "Params.sketch5_height")
sketch5.setExpression("Constraints[109]", "Params.sketch5_height2")
pad4 = doc.addObject("PartDesign::Pad", "Pad003")
body.addObject(pad4)
pad4.Profile = sketch5
pad4.setExpression("Length", "Params.pad4_length")
pad4.Reversed = True

doc.recompute()
